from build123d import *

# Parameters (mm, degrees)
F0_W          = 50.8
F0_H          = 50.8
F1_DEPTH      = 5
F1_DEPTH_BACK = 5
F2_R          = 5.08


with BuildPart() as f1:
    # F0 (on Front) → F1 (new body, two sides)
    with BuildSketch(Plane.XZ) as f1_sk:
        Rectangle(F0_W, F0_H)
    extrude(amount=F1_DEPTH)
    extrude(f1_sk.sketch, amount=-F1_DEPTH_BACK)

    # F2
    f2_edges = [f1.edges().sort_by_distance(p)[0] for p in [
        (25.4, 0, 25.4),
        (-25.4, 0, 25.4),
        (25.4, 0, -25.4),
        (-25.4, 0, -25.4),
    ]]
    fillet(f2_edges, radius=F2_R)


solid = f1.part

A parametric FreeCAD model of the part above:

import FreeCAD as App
import Part
import Sketcher
from FreeCAD import Vector
Q = App.Units.Quantity


def edges_at(feature, points):
    """Names of the edges that pass closest to the given points."""
    edges = feature.Shape.Edges
    near = lambda p: min(range(len(edges)), key=lambda i: edges[i].distToShape(Part.Vertex(*p))[0])
    return sorted({f"Edge{near(p) + 1}" for p in points})


def add_polygon(sketch, points):
    """Adds a closed chain of lines whose ends are joined by coincident constraints."""
    first, n = sketch.GeometryCount, len(points)
    for a, b in zip(points, points[1:] + points[:1]):
        sketch.addGeometry(Part.LineSegment(App.Vector(*a, 0), App.Vector(*b, 0)), False)
    for i in range(n):
        sketch.addConstraint(Sketcher.Constraint("Coincident", first + i, 2, first + (i + 1) % n, 1))

doc = App.newDocument("Part")
body = doc.addObject("PartDesign::Body", "Body")

# Sketch on XZ plane
sketch1 = body.newObject("Sketcher::SketchObject", "Sketch")
sketch1.AttachmentSupport = (doc.getObject("XZ_Plane"), [""])
sketch1.MapMode = "FlatFace"
add_polygon(sketch1, [(-25, 25), (-25, -25), (25, -25), (25, 25)])  # lines 0-3
sketch1.addConstraint([
    Sketcher.Constraint("Vertical", 0),
    Sketcher.Constraint("Horizontal", 1),
    Sketcher.Constraint("Vertical", 2),
    Sketcher.Constraint("Horizontal", 3),
    Sketcher.Constraint("Symmetric", 0, 2, 2, 2, -1, 1),
    Sketcher.Constraint("Equal", 3, 0),
    Sketcher.Constraint("DistanceX", 1, 1, 1, 2, Q("2 in")),
])
pad1 = body.newObject("PartDesign::Pad", "Pad")
pad1.Profile = sketch1
pad1.Type = "TwoLengths"
pad1.Length = 5
pad1.Length2 = 5
doc.recompute()

fillet = body.newObject("PartDesign::Fillet", "Fillet")
fillet.Base = (pad1, edges_at(pad1, [
    (25.4, 0, 25.4),
    (-25.4, 0, 25.4),
    (25.4, 0, -25.4),
    (-25.4, 0, -25.4),
]))
fillet.Radius = Q("0.2 in")

doc.recompute()
